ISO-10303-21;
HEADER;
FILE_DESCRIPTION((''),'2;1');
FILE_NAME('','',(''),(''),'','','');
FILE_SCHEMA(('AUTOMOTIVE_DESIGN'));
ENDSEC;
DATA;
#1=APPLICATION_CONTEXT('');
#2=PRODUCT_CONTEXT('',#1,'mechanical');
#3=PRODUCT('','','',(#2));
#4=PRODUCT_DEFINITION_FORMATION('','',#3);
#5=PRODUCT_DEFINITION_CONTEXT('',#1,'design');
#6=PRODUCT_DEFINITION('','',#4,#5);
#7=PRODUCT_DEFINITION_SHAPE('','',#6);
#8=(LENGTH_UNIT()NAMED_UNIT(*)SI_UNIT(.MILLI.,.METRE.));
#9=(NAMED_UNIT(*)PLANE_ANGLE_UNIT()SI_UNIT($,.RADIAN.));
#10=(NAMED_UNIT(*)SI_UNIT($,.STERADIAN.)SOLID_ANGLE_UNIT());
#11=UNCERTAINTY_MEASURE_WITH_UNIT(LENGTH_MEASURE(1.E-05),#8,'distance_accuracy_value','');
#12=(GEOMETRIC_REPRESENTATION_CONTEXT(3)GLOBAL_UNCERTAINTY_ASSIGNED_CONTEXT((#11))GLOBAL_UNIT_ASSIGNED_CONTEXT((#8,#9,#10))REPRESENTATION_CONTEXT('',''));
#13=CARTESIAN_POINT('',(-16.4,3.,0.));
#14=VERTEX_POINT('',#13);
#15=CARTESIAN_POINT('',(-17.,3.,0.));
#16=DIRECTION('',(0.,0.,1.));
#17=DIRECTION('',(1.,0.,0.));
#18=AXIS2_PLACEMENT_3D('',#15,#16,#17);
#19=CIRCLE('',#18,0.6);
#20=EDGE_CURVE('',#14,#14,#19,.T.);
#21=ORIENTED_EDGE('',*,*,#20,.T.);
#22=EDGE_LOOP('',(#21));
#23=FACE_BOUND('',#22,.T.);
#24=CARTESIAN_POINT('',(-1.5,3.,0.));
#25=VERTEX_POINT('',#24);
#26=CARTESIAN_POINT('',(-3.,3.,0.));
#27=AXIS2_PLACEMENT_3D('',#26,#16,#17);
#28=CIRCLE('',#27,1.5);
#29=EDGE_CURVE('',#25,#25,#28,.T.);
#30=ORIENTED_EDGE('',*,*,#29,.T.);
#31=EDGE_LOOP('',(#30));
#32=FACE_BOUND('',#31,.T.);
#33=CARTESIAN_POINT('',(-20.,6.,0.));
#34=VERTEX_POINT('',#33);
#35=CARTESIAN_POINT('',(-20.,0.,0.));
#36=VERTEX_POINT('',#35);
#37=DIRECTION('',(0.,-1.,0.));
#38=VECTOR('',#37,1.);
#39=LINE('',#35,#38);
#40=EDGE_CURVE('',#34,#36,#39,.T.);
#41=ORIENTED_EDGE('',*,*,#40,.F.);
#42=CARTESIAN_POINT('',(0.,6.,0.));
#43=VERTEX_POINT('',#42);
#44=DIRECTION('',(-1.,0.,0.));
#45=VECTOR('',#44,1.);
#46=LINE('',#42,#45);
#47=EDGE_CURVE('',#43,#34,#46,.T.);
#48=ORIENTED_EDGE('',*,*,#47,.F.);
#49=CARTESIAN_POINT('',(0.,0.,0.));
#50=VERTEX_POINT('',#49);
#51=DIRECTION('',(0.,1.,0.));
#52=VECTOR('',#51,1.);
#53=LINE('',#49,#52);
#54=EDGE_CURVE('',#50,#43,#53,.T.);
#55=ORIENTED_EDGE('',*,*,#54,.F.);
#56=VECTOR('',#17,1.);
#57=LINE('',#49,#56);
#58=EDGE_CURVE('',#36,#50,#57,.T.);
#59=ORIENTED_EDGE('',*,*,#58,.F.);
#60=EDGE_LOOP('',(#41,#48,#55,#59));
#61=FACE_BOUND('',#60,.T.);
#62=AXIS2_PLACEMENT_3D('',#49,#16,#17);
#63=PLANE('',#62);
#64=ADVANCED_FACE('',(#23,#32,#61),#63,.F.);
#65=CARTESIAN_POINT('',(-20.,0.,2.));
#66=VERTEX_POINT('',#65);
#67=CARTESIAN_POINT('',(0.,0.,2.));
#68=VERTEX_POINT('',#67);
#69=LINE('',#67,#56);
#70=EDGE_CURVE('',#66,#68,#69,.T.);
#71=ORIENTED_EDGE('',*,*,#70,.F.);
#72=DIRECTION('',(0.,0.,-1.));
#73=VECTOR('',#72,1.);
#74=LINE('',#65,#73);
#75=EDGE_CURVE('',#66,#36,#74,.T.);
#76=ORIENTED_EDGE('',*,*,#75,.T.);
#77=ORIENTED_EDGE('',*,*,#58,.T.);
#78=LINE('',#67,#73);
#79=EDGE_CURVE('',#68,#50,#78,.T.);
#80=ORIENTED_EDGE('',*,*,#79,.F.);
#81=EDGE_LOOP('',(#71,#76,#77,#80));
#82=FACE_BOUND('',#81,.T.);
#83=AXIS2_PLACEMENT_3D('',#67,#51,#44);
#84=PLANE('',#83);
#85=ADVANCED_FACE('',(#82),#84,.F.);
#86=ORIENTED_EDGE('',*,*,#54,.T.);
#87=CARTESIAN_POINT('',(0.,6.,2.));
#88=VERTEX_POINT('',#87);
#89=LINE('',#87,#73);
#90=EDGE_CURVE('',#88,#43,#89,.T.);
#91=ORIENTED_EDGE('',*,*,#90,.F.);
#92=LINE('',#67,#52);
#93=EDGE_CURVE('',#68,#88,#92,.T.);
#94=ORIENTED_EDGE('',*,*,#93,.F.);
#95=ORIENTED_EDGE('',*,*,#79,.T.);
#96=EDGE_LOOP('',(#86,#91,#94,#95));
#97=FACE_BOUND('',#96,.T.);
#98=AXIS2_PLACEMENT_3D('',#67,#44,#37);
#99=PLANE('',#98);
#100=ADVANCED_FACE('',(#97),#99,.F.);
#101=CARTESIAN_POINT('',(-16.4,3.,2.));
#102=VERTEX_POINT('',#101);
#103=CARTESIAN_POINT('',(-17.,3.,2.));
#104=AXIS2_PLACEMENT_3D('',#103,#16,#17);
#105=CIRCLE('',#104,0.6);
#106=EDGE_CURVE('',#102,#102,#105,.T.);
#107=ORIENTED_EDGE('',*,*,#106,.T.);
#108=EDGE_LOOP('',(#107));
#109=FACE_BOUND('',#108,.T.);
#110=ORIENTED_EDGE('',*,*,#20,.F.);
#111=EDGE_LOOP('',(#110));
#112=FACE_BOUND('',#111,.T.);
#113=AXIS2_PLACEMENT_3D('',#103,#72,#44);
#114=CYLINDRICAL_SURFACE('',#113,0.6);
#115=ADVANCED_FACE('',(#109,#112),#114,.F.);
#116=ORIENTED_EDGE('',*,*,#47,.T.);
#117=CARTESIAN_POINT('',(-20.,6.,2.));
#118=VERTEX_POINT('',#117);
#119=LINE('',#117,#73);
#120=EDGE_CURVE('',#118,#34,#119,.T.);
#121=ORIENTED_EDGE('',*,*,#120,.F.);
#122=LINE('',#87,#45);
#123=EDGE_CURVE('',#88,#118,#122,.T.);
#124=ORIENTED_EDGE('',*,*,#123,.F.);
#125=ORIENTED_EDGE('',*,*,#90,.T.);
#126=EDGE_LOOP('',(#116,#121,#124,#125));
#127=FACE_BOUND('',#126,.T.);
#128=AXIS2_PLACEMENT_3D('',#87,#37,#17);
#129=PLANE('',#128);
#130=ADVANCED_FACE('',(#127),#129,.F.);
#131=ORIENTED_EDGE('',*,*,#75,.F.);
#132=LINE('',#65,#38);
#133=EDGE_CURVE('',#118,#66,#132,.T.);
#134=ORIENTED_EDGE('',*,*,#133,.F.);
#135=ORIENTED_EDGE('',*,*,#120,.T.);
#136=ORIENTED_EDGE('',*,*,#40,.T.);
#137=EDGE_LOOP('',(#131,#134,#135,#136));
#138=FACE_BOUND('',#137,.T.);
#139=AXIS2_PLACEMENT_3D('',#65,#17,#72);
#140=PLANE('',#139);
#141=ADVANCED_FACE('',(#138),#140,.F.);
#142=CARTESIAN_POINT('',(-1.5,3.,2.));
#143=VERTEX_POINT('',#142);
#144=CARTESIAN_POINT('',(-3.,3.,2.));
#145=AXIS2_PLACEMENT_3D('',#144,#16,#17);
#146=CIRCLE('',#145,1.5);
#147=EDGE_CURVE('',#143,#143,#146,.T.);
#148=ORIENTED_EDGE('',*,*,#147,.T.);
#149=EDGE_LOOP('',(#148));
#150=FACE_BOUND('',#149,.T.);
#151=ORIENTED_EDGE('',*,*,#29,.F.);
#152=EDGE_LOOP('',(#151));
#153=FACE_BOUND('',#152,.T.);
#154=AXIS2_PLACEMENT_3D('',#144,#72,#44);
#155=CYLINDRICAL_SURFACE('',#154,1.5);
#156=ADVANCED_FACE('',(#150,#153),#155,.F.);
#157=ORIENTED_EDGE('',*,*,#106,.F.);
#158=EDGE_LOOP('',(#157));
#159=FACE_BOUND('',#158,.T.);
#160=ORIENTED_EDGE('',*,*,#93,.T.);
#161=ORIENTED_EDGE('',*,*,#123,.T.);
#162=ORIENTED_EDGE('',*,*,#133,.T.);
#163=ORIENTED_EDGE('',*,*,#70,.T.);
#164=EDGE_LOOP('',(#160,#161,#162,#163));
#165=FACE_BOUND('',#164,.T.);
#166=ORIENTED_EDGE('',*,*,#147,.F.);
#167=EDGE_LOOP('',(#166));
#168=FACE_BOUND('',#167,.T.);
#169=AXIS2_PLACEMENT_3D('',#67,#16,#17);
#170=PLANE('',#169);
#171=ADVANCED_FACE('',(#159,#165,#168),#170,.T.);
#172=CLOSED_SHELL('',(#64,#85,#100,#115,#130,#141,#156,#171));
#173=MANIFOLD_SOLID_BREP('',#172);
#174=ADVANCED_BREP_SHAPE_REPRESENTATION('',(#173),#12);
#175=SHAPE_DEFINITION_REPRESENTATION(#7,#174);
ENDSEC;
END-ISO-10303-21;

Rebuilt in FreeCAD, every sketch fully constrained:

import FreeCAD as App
import Part
import Sketcher
from FreeCAD import Vector


def add_polygon(sketch, points):
    """Adds a closed chain of lines whose ends are joined by coincident constraints."""
    first, n = sketch.GeometryCount, len(points)
    for a, b in zip(points, points[1:] + points[:1]):
        sketch.addGeometry(Part.LineSegment(App.Vector(*a, 0), App.Vector(*b, 0)), False)
    for i in range(n):
        sketch.addConstraint(Sketcher.Constraint("Coincident", first + i, 2, first + (i + 1) % n, 1))

doc = App.newDocument("Part")
body = doc.addObject("PartDesign::Body", "Body")

sketch1 = body.newObject("Sketcher::SketchObject", "Sketch")
sketch1.AttachmentSupport = (doc.getObject("XY_Plane"), [""])
sketch1.MapMode = "FlatFace"
add_polygon(sketch1, [(-20, 6), (-20, 0), (0, 0), (0, 6)])
sketch1.addGeometry(Part.Circle(Vector(-17, 3, 0), Vector(0, 0, 1), 0.6), False)
sketch1.addGeometry(Part.Circle(Vector(-3, 3, 0), Vector(0, 0, 1), 1.5), False)
sketch1.addConstraint([
    Sketcher.Constraint("Vertical", 0),
    Sketcher.Constraint("Horizontal", 1),
    Sketcher.Constraint("Vertical", 2),
    Sketcher.Constraint("Horizontal", 3),
    Sketcher.Constraint("Coincident", 1, 2, -1, 1),
    Sketcher.Constraint("Horizontal", 4, 3, 5, 3),
    Sketcher.Constraint("Diameter", 5, 3.0),
    Sketcher.Constraint("Diameter", 4, 1.2),
    Sketcher.Constraint("DistanceX", 1, 1, 1, 2, 20.0),
    Sketcher.Constraint("DistanceY", 0, 2, 0, 1, 6.0),
    Sketcher.Constraint("DistanceX", 4, 3, -1, 1, 17.0),
    Sketcher.Constraint("DistanceY", -1, 1, 4, 3, 3.0),
    Sketcher.Constraint("DistanceX", 5, 3, -1, 1, 3.0),
])
pad1 = body.newObject("PartDesign::Pad", "Pad")
pad1.Profile = sketch1
pad1.Length = 2

doc.recompute()
